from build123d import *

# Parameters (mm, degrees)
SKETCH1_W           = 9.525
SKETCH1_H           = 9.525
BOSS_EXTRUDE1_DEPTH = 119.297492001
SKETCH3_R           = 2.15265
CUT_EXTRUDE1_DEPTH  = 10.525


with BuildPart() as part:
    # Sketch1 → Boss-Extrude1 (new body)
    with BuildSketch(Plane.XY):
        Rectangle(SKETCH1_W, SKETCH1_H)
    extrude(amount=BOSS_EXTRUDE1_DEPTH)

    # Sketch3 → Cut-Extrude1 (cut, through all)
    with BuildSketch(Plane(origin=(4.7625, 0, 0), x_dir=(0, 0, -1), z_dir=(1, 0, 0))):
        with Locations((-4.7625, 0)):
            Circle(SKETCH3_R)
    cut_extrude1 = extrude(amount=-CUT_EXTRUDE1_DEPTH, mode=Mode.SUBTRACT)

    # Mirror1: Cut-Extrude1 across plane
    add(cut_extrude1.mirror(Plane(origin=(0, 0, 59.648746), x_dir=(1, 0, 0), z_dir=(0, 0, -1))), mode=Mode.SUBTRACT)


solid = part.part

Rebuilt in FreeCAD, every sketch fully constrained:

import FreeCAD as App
import Part
import Sketcher

V = App.Vector
Q = App.Units.Quantity


def add_polygon(sketch, points):
    """Adds a closed chain of lines whose ends are joined by coincident constraints."""
    first, n = sketch.GeometryCount, len(points)
    for a, b in zip(points, points[1:] + points[:1]):
        sketch.addGeometry(Part.LineSegment(App.Vector(*a, 0), App.Vector(*b, 0)), False)
    for i in range(n):
        sketch.addConstraint(Sketcher.Constraint("Coincident", first + i, 2, first + (i + 1) % n, 1))

doc = App.newDocument("Part")
params = doc.addObject("Spreadsheet::Sheet", "Params")
for row, (alias, value) in enumerate([
    ("sketch1_width", "0.375 in"),
    ("pad1_length", "119.297492 mm"),
], start=1):
    params.set(f"A{row}", alias)
    params.set(f"B{row}", "=" + value)
    params.setAlias(f"B{row}", alias)

body = doc.addObject("PartDesign::Body", "Body")

# Sketch on XY plane
sketch1 = body.newObject("Sketcher::SketchObject", "Sketch")
sketch1.AttachmentSupport = (doc.getObject("XY_Plane"), [""])
sketch1.MapMode = "FlatFace"
add_polygon(sketch1, [(-5, 5), (-5, -5), (5, -5), (5, 5)])  # lines 0-3
sketch1.addConstraint([
    Sketcher.Constraint("Vertical", 0),
    Sketcher.Constraint("Horizontal", 1),
    Sketcher.Constraint("Vertical", 2),
    Sketcher.Constraint("Horizontal", 3),
    Sketcher.Constraint("Symmetric", 0, 2, 2, 2, -1, 1),
    Sketcher.Constraint("Equal", 3, 0),
    Sketcher.Constraint("DistanceX", 1, 1, 1, 2, Q("0.375 in")),
])
sketch1.setExpression("Constraints[10]", "Params.sketch1_width")
pad1 = body.newObject("PartDesign::Pad", "Pad")
pad1.Profile = sketch1
pad1.setExpression("Length", "Params.pad1_length")

# Sketch on YZ plane
sketch2 = body.newObject("Sketcher::SketchObject", "Sketch001")
sketch2.AttachmentSupport = (doc.getObject("YZ_Plane"), [""])
sketch2.MapMode = "FlatFace"
sketch2.AttachmentOffset = App.Placement(V(0, 0, 0.1875 * 25.4), App.Rotation())
sketch2.addGeometry(Part.Circle(V(0, 4.8, 0), V(0, 0, 1), 2.2), False)
sketch2.addConstraint([
    Sketcher.Constraint("PointOnObject", 0, 3, -2),
    Sketcher.Constraint("Diameter", 0, Q("0.1695 in")),
    Sketcher.Constraint("DistanceY", -1, 1, 0, 3, Q("0.1875 in")),
])
pocket1 = body.newObject("PartDesign::Pocket", "Pocket")
pocket1.Profile = sketch2
pocket1.Type = "ThroughAll"
doc.recompute()

datumplane = body.newObject("PartDesign::Plane", "DatumPlane")
datumplane.AttachmentSupport = (doc.getObject("XY_Plane"), [""])
datumplane.MapMode = "FlatFace"
datumplane.AttachmentOffset = App.Placement(V(0, 0, 59.648746), App.Rotation())
mirrored = body.newObject("PartDesign::Mirrored", "Mirrored")
mirrored.Originals = [pocket1]
mirrored.MirrorPlane = (datumplane, [""])
body.Tip = mirrored

doc.recompute()
